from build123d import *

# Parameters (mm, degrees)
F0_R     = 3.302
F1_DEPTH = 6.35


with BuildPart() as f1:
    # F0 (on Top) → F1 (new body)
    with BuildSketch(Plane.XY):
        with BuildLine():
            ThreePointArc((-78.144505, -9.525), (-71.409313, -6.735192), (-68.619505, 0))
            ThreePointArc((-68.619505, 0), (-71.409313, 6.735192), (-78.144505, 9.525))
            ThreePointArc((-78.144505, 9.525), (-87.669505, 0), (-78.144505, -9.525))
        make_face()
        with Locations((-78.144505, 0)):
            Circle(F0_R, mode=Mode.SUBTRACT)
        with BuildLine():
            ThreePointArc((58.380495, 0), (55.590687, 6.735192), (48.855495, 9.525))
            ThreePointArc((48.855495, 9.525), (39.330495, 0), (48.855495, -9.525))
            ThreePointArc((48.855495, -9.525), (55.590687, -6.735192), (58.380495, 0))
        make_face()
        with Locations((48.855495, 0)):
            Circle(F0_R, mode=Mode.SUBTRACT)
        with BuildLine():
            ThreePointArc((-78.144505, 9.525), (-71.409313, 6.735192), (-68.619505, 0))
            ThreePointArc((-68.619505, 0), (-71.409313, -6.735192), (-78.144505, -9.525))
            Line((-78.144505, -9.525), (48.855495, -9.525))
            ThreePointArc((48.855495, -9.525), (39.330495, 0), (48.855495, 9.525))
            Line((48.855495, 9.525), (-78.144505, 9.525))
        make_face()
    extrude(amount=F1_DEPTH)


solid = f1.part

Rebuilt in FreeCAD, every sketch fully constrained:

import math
import FreeCAD as App
import Part
import Sketcher

V = App.Vector
Q = App.Units.Quantity

doc = App.newDocument("Part")
params = doc.addObject("Spreadsheet::Sheet", "Params")
for row, (alias, value) in enumerate([
    ("sketch1_diameter", "0.26 in"),
    ("sketch1_width", "5 in"),
    ("sketch1_radius", "0.375 in"),
    ("pad1_length", "0.25 in"),
], start=1):
    params.set(f"A{row}", alias)
    params.set(f"B{row}", "=" + value)
    params.setAlias(f"B{row}", alias)

body = doc.addObject("PartDesign::Body", "Body")

# Sketch on XY plane
sketch1 = body.newObject("Sketcher::SketchObject", "Sketch")
sketch1.AttachmentSupport = (doc.getObject("XY_Plane"), [""])
sketch1.MapMode = "FlatFace"
sketch1.addGeometry(Part.ArcOfCircle(Part.Circle(V(-78.1, 0, 0), V(0, 0, 1), 9.5), math.radians(90), math.radians(270)), False)
sketch1.addGeometry(Part.LineSegment(V(-78.1, -9.5, 0), V(48.9, -9.5, 0)), False)
sketch1.addGeometry(Part.ArcOfCircle(Part.Circle(V(48.9, 0, 0), V(0, 0, 1), 9.5), math.radians(-90), math.radians(0)), False)
sketch1.addGeometry(Part.ArcOfCircle(Part.Circle(V(48.9, 0, 0), V(0, 0, 1), 9.5), math.radians(0), math.radians(90)), False)
sketch1.addGeometry(Part.LineSegment(V(48.9, 9.5, 0), V(-78.1, 9.5, 0)), False)
sketch1.addGeometry(Part.Circle(V(-78.1, 0, 0), V(0, 0, 1), 3.3), False)
sketch1.addGeometry(Part.Circle(V(48.9, 0, 0), V(0, 0, 1), 3.3), False)
sketch1.addConstraint(Sketcher.Constraint("Tangent", 0, 2, 1, 1))
sketch1.addConstraint(Sketcher.Constraint("Tangent", 1, 2, 2, 1))
sketch1.addConstraint(Sketcher.Constraint("Tangent", 2, 2, 3, 1))
sketch1.addConstraint(Sketcher.Constraint("Tangent", 3, 2, 4, 1))
sketch1.addConstraint(Sketcher.Constraint("Tangent", 4, 2, 0, 1))
sketch1.addConstraint(Sketcher.Constraint("Horizontal", 1))
sketch1.addConstraint(Sketcher.Constraint("Horizontal", 4))
sketch1.addConstraint(Sketcher.Constraint("Coincident", 5, 3, 0, 3))
sketch1.addConstraint(Sketcher.Constraint("Coincident", 6, 3, 2, 3))
sketch1.addConstraint(Sketcher.Constraint("Equal", 0, 2))
sketch1.addConstraint(Sketcher.Constraint("Equal", 5, 6))
sketch1.addConstraint(Sketcher.Constraint("PointOnObject", 0, 3, -1))
sketch1.addConstraint(Sketcher.Constraint("PointOnObject", 2, 2, -1))
sketch1.addConstraint(Sketcher.Constraint("Diameter", 5, Q("0.26 in")))
sketch1.addConstraint(Sketcher.Constraint("DistanceX", 1, 1, 1, 2, Q("5 in")))
sketch1.addConstraint(Sketcher.Constraint("Radius", 0, Q("0.375 in")))
sketch1.addConstraint(Sketcher.Constraint("DistanceX", 0, 3, -1, 1, Q("78.144505 mm")))
sketch1.setExpression("Constraints[13]", "Params.sketch1_diameter")
sketch1.setExpression("Constraints[14]", "Params.sketch1_width")
sketch1.setExpression("Constraints[15]", "Params.sketch1_radius")
pad1 = body.newObject("PartDesign::Pad", "Pad")
pad1.Profile = sketch1
pad1.setExpression("Length", "Params.pad1_length")

doc.recompute()
